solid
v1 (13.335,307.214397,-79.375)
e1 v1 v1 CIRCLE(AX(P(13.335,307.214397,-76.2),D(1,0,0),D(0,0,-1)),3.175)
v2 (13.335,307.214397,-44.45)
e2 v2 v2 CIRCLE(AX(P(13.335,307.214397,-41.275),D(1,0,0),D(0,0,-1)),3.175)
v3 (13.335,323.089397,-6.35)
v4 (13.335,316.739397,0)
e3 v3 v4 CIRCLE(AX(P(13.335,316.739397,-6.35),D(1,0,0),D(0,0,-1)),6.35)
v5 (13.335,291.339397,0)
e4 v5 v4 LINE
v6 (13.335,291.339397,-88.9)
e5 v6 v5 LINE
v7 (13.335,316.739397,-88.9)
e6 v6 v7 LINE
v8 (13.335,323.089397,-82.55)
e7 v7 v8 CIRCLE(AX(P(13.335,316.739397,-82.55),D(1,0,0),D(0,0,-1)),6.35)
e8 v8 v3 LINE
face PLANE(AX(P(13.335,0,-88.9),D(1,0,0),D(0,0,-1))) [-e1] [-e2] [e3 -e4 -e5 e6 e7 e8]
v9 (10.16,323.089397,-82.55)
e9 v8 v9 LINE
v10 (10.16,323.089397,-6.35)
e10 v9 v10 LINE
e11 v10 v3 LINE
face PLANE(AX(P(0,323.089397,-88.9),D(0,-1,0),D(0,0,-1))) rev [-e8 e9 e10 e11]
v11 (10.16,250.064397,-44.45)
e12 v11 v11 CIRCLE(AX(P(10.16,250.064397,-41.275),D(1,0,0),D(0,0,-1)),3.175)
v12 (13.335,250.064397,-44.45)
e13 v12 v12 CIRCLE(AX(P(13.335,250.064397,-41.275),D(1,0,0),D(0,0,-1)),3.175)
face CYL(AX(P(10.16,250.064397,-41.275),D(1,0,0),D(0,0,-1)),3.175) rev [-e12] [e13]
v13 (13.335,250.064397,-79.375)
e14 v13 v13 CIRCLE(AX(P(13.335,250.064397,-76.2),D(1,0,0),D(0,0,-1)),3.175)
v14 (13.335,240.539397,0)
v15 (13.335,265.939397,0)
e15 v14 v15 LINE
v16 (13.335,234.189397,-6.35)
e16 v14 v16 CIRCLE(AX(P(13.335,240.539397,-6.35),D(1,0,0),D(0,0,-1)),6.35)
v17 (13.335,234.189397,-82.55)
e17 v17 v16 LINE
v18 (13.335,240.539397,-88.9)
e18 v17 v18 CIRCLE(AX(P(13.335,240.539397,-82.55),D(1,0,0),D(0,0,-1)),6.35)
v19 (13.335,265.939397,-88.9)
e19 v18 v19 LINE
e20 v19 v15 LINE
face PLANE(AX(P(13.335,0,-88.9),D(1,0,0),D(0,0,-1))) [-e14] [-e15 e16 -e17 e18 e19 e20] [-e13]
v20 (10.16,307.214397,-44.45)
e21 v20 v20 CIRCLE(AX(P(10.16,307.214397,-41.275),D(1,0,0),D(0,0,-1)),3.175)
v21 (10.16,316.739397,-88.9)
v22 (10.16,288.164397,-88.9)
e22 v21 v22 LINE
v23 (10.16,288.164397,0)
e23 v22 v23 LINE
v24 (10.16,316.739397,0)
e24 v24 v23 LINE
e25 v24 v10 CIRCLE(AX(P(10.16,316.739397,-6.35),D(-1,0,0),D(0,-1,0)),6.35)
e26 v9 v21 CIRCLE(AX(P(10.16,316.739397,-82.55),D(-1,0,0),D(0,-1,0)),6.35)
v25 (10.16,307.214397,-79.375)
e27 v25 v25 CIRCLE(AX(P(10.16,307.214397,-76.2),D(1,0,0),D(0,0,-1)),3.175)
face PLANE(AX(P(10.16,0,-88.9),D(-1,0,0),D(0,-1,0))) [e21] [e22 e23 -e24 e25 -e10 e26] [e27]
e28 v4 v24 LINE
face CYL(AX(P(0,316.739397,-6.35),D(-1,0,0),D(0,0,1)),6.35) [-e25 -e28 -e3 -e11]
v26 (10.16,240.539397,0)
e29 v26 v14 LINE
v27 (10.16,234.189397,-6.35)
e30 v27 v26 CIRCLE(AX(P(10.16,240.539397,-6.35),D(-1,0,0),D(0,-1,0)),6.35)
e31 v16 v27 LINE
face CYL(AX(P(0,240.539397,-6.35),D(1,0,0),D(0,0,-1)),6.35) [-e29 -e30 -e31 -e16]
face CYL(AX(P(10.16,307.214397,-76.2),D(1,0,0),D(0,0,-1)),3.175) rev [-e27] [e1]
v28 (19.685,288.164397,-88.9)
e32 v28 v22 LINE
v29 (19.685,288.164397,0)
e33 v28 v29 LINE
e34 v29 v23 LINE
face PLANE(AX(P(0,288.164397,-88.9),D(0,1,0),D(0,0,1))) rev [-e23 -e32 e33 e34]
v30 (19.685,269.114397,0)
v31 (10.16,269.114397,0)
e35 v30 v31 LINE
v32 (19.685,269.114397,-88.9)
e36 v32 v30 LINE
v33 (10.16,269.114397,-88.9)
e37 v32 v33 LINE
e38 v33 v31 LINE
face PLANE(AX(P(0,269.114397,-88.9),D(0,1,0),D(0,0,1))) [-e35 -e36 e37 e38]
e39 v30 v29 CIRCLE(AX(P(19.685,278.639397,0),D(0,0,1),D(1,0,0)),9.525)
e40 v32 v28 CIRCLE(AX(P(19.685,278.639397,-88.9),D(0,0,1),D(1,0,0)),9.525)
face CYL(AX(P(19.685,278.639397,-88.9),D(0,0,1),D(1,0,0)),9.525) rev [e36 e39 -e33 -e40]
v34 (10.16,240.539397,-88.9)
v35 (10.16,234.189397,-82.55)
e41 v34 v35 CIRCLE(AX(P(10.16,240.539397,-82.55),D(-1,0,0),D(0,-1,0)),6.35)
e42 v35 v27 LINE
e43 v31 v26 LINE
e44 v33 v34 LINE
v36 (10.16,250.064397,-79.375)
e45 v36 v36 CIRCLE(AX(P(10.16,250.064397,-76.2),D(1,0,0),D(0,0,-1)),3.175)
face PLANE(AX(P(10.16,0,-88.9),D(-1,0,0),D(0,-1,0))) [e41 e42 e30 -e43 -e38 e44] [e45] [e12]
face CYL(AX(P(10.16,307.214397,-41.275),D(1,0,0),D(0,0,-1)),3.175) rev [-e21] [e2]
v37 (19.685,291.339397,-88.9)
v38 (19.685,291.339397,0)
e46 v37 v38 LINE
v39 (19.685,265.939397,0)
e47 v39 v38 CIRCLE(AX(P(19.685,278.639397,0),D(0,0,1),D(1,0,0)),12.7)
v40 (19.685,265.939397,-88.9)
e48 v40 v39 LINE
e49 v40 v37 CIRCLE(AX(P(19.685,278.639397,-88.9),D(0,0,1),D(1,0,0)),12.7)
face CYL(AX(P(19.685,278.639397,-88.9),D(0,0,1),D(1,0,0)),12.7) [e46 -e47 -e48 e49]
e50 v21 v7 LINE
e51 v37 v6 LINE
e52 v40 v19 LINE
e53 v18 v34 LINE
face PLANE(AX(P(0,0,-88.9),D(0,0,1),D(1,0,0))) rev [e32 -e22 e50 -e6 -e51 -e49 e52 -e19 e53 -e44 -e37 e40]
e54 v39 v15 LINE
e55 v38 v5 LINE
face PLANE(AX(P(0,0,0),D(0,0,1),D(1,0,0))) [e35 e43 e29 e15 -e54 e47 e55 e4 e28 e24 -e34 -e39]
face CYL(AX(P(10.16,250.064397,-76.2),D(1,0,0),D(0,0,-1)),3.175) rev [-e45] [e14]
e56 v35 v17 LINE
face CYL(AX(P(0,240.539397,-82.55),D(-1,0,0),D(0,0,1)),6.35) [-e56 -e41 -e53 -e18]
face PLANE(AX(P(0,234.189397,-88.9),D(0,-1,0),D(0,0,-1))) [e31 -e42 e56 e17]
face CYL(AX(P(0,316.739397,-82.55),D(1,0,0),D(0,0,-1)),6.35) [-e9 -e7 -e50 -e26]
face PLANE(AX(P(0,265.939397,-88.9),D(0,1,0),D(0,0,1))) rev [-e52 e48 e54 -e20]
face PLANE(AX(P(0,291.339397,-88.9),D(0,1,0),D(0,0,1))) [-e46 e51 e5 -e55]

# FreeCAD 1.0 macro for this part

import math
import FreeCAD as App
import Part
import Sketcher
from FreeCAD import Vector
Q = App.Units.Quantity


def edges_at(feature, points):
    """Names of the edges that pass closest to the given points."""
    edges = feature.Shape.Edges
    near = lambda p: min(range(len(edges)), key=lambda i: edges[i].distToShape(Part.Vertex(*p))[0])
    return sorted({f"Edge{near(p) + 1}" for p in points})

doc = App.newDocument("Part")
params = doc.addObject("Spreadsheet::Sheet", "Params")
for row, (alias, value) in enumerate([
    ("sketch1_radius", "0.5 in"),
    ("sketch1_radius2", "0.375 in"),
    ("sketch1_width", "0.25 in"),
    ("sketch1_height", "1.25 in"),
    ("sketch1_width2", "0.125 in"),
    ("pad1_length", "3.5 in"),
    ("sketch2_diameter", "0.25 in"),
    ("fillet_radius", "0.25 in"),
], start=1):
    params.set(f"A{row}", alias)
    params.set(f"B{row}", "=" + value)
    params.setAlias(f"B{row}", alias)

body = doc.addObject("PartDesign::Body", "Body")

# Sketch on XY plane
sketch1 = doc.addObject("Sketcher::SketchObject", "Sketch")
body.addObject(sketch1)
sketch1.AttachmentSupport = (doc.XY_Plane, [""])
sketch1.MapMode = "FlatFace"
sketch1.addGeometry([
    Part.LineSegment(Vector(13.3, 323.1, 0), Vector(10.2, 323.1, 0)),  # 0
    Part.LineSegment(Vector(10.2, 323.1, 0), Vector(10.2, 288.2, 0)),  # 1
    Part.LineSegment(Vector(10.2, 288.2, 0), Vector(19.7, 288.2, 0)),  # 2
    Part.ArcOfCircle(Part.Circle(Vector(19.7, 278.6, 0), Vector(0, 0, 1), 9.5), math.radians(-90), math.radians(90)),  # 3
    Part.LineSegment(Vector(19.7, 269.1, 0), Vector(10.2, 269.1, 0)),  # 4
    Part.LineSegment(Vector(10.2, 269.1, 0), Vector(10.2, 234.2, 0)),  # 5
    Part.LineSegment(Vector(10.2, 234.2, 0), Vector(13.3, 234.2, 0)),  # 6
    Part.LineSegment(Vector(13.3, 234.2, 0), Vector(13.3, 265.9, 0)),  # 7
    Part.LineSegment(Vector(13.3, 265.9, 0), Vector(19.7, 265.9, 0)),  # 8
    Part.ArcOfCircle(Part.Circle(Vector(19.7, 278.6, 0), Vector(0, 0, 1), 12.7), math.radians(-90), math.radians(90)),  # 9
    Part.LineSegment(Vector(19.7, 291.3, 0), Vector(13.3, 291.3, 0)),  # 10
    Part.LineSegment(Vector(13.3, 291.3, 0), Vector(13.3, 323.1, 0)),  # 11
], False)
sketch1.addConstraint([
    Sketcher.Constraint("Coincident", 0, 2, 1, 1),
    Sketcher.Constraint("Coincident", 1, 2, 2, 1),
    Sketcher.Constraint("Tangent", 2, 2, 3, 2),
    Sketcher.Constraint("Tangent", 3, 1, 4, 1),
    Sketcher.Constraint("Coincident", 4, 2, 5, 1),
    Sketcher.Constraint("Coincident", 5, 2, 6, 1),
    Sketcher.Constraint("Coincident", 6, 2, 7, 1),
    Sketcher.Constraint("Coincident", 7, 2, 8, 1),
    Sketcher.Constraint("Tangent", 8, 2, 9, 1),
    Sketcher.Constraint("Tangent", 9, 2, 10, 1),
    Sketcher.Constraint("Coincident", 10, 2, 11, 1),
    Sketcher.Constraint("Coincident", 11, 2, 0, 1),
    Sketcher.Constraint("Horizontal", 0),
    Sketcher.Constraint("Vertical", 1),
    Sketcher.Constraint("Horizontal", 2),
    Sketcher.Constraint("Horizontal", 4),
    Sketcher.Constraint("Vertical", 5),
    Sketcher.Constraint("Horizontal", 6),
    Sketcher.Constraint("Vertical", 7),
    Sketcher.Constraint("Horizontal", 8),
    Sketcher.Constraint("Horizontal", 10),
    Sketcher.Constraint("Vertical", 11),
    Sketcher.Constraint("Coincident", 9, 3, 3, 3),
    Sketcher.Constraint("Vertical", 1, 2, 4, 2),
    Sketcher.Constraint("Vertical", 7, 2, 10, 2),
    Sketcher.Constraint("Equal", 1, 5),
    Sketcher.Constraint("Radius", 9, Q("0.5 in")),
    Sketcher.Constraint("Radius", 3, Q("0.375 in")),
    Sketcher.Constraint("DistanceX", 8, 1, 8, 2, Q("0.25 in")),
    Sketcher.Constraint("DistanceY", 7, 1, 7, 2, Q("1.25 in")),
    Sketcher.Constraint("DistanceX", -1, 1, 0, 2, Q("0.4 in")),
    Sketcher.Constraint("DistanceX", 0, 2, 0, 1, Q("0.125 in")),
    Sketcher.Constraint("DistanceY", -1, 1, 3, 3, 278.639397),
])
sketch1.setExpression("Constraints[26]", "Params.sketch1_radius")
sketch1.setExpression("Constraints[27]", "Params.sketch1_radius2")
sketch1.setExpression("Constraints[28]", "Params.sketch1_width")
sketch1.setExpression("Constraints[29]", "Params.sketch1_height")
sketch1.setExpression("Constraints[31]", "Params.sketch1_width2")
pad1 = doc.addObject("PartDesign::Pad", "Pad")
body.addObject(pad1)
pad1.Profile = sketch1
pad1.setExpression("Length", "Params.pad1_length")
pad1.Reversed = True

# Sketch on YZ plane
sketch2 = doc.addObject("Sketcher::SketchObject", "Sketch001")
body.addObject(sketch2)
sketch2.AttachmentSupport = (doc.YZ_Plane, [""])
sketch2.MapMode = "FlatFace"
sketch2.AttachmentOffset = App.Placement(Vector(0, 0, 0.525 * 25.4), App.Rotation())
sketch2.addGeometry([
    Part.Circle(Vector(250.1, -41.3, 0), Vector(0, 0, 1), 3.2),
    Part.Circle(Vector(250.1, -76.2, 0), Vector(0, 0, 1), 3.2),
    Part.Circle(Vector(307.2, -76.2, 0), Vector(0, 0, 1), 3.2),
    Part.Circle(Vector(307.2, -41.3, 0), Vector(0, 0, 1), 3.2),
], False)
sketch2.addConstraint([
    Sketcher.Constraint("Equal", 0, 1),
    Sketcher.Constraint("Equal", 1, 2),
    Sketcher.Constraint("Equal", 2, 3),
    Sketcher.Constraint("Horizontal", 1, 3, 2, 3),
    Sketcher.Constraint("Horizontal", 0, 3, 3, 3),
    Sketcher.Constraint("Vertical", 0, 3, 1, 3),
    Sketcher.Constraint("Vertical", 2, 3, 3, 3),
    Sketcher.Constraint("Diameter", 0, Q("0.25 in")),
    Sketcher.Constraint("DistanceY", 1, 3, -1, 1, Q("3 in")),
    Sketcher.Constraint("DistanceX", 1, 3, 2, 3, Q("2.25 in")),
    Sketcher.Constraint("DistanceY", 0, 3, -1, 1, Q("1.625 in")),
    Sketcher.Constraint("DistanceX", -1, 1, 0, 3, 250.064397),
])
sketch2.setExpression("Constraints[7]", "Params.sketch2_diameter")
pocket1 = doc.addObject("PartDesign::Pocket", "Pocket")
body.addObject(pocket1)
pocket1.Profile = sketch2
pocket1.Type = "ThroughAll"
doc.recompute()

fillet = doc.addObject("PartDesign::Fillet", "Fillet")
body.addObject(fillet)
fillet.Base = (pocket1, edges_at(pocket1, [
    (11.748, 323.089, 0),
    (11.748, 234.189, 0),
    (11.748, 234.189, -88.9),
    (11.748, 323.089, -88.9),
]))
fillet.setExpression("Radius", "Params.fillet_radius")

doc.recompute()
